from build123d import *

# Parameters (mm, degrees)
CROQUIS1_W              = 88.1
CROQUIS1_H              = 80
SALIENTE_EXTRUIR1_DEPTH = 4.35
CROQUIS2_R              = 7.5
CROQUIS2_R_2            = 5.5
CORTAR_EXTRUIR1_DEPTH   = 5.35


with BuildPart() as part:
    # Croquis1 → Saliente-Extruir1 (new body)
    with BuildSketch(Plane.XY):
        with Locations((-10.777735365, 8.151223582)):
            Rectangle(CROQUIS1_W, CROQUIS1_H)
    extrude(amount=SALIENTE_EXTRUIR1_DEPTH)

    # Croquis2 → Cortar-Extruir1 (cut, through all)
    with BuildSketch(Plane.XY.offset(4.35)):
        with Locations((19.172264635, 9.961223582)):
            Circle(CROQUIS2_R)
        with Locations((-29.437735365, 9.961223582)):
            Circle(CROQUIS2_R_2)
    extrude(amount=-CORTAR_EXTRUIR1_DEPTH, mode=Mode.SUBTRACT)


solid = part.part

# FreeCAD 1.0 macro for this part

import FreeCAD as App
import Part
import Sketcher


def add_polygon(sketch, points):
    """Adds a closed chain of lines whose ends are joined by coincident constraints."""
    first, n = sketch.GeometryCount, len(points)
    for a, b in zip(points, points[1:] + points[:1]):
        sketch.addGeometry(Part.LineSegment(App.Vector(*a, 0), App.Vector(*b, 0)), False)
    for i in range(n):
        sketch.addConstraint(Sketcher.Constraint("Coincident", first + i, 2, first + (i + 1) % n, 1))

doc = App.newDocument("Part")
body = doc.addObject("PartDesign::Body", "Body")

# Sketch on XY plane
sketch1 = body.newObject("Sketcher::SketchObject", "Sketch")
sketch1.AttachmentSupport = (doc.getObject("XY_Plane"), [""])
sketch1.MapMode = "FlatFace"
add_polygon(sketch1, [(-55, 48), (-55, -32), (33, -32), (33, 48)])  # lines 0-3
sketch1.addConstraint(Sketcher.Constraint("Vertical", 0))
sketch1.addConstraint(Sketcher.Constraint("Horizontal", 1))
sketch1.addConstraint(Sketcher.Constraint("Vertical", 2))
sketch1.addConstraint(Sketcher.Constraint("Horizontal", 3))
sketch1.addConstraint(Sketcher.Constraint("DistanceY", 0, 2, 0, 1, 80.0))
sketch1.addConstraint(Sketcher.Constraint("DistanceX", 1, 1, 1, 2, 88.1))
sketch1.addConstraint(Sketcher.Constraint("DistanceX", 0, 2, -1, 1, 54.827735))
sketch1.addConstraint(Sketcher.Constraint("DistanceY", 0, 2, -1, 1, 31.848776))
pad1 = body.newObject("PartDesign::Pad", "Pad")
pad1.Profile = sketch1
pad1.Length = 4.35

# Sketch on XY plane
sketch2 = body.newObject("Sketcher::SketchObject", "Sketch001")
sketch2.AttachmentSupport = (doc.getObject("XY_Plane"), [""])
sketch2.MapMode = "FlatFace"
sketch2.AttachmentOffset = App.Placement(App.Vector(0, 0, 4.35), App.Rotation())
sketch2.addGeometry(Part.Circle(App.Vector(19, 10, 0), App.Vector(0, 0, 1), 8), False)
sketch2.addGeometry(Part.Circle(App.Vector(-29, 10, 0), App.Vector(0, 0, 1), 6), False)
sketch2.addConstraint(Sketcher.Constraint("Horizontal", 0, 3, 1, 3))
sketch2.addConstraint(Sketcher.Constraint("Diameter", 0, 15.0))
sketch2.addConstraint(Sketcher.Constraint("Diameter", 1, 11.0))
sketch2.addConstraint(Sketcher.Constraint("DistanceX", 1, 3, 0, 3, 48.61))
sketch2.addConstraint(Sketcher.Constraint("DistanceX", -1, 1, 0, 3, 19.172265))
sketch2.addConstraint(Sketcher.Constraint("DistanceY", -1, 1, 0, 3, 9.961224))
pocket1 = body.newObject("PartDesign::Pocket", "Pocket")
pocket1.Profile = sketch2
pocket1.Type = "ThroughAll"

doc.recompute()
